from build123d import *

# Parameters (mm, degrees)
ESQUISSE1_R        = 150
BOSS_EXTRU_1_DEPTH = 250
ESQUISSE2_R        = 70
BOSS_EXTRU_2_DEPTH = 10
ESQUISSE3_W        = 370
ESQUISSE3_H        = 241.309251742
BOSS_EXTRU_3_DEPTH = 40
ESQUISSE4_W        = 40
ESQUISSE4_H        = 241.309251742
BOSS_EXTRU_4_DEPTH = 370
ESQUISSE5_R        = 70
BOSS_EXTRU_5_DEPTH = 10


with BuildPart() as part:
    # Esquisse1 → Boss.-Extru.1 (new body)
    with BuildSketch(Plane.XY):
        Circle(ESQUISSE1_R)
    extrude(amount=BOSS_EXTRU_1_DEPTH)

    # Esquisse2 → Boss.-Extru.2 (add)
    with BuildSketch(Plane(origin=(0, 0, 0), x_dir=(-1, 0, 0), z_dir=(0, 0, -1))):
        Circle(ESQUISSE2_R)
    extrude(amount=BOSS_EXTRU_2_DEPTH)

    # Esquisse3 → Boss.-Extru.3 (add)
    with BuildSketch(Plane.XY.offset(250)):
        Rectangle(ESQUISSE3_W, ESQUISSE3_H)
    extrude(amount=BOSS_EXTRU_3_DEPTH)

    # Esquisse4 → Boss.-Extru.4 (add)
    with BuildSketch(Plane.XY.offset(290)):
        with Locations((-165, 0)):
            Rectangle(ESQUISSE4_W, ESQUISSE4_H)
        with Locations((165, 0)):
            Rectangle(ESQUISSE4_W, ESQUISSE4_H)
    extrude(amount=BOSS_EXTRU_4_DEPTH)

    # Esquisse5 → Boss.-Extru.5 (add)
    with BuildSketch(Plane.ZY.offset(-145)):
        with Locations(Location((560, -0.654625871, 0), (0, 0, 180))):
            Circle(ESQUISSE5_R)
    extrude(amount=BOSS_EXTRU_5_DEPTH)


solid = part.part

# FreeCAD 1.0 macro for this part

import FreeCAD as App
import Part
import Sketcher
from FreeCAD import Vector

doc = App.newDocument("Part")
body = doc.addObject("PartDesign::Body", "Body")

# Sketch on XY plane
sketch1 = doc.addObject("Sketcher::SketchObject", "Sketch")
body.addObject(sketch1)
sketch1.AttachmentSupport = (doc.XY_Plane, [""])
sketch1.MapMode = "FlatFace"
sketch1.addGeometry(Part.Circle(Vector(0, 0, 0), Vector(0, 0, 1), 150), False)
sketch1.addConstraint([
    Sketcher.Constraint("Coincident", 0, 3, -1, 1),
    Sketcher.Constraint("Diameter", 0, 300.0),
])
pad1 = doc.addObject("PartDesign::Pad", "Pad")
body.addObject(pad1)
pad1.Profile = sketch1
pad1.Length = 250

# Sketch on XY plane
sketch2 = doc.addObject("Sketcher::SketchObject", "Sketch001")
body.addObject(sketch2)
sketch2.AttachmentSupport = (doc.XY_Plane, [""])
sketch2.MapMode = "FlatFace"
sketch2.addGeometry(Part.Circle(Vector(0, 0, 0), Vector(0, 0, 1), 70), False)
sketch2.addConstraint([
    Sketcher.Constraint("Coincident", 0, 3, -1, 1),
    Sketcher.Constraint("Diameter", 0, 140.0),
])
pad2 = doc.addObject("PartDesign::Pad", "Pad001")
body.addObject(pad2)
pad2.Profile = sketch2
pad2.Length = 10
pad2.Reversed = True

# Sketch on XY plane
sketch3 = doc.addObject("Sketcher::SketchObject", "Sketch002")
body.addObject(sketch3)
sketch3.AttachmentSupport = (doc.XY_Plane, [""])
sketch3.MapMode = "FlatFace"
sketch3.AttachmentOffset = App.Placement(Vector(0, 0, 250), App.Rotation())
sketch3.addGeometry([
    Part.LineSegment(Vector(-185, 121, 0), Vector(-185, -121, 0)),
    Part.LineSegment(Vector(-185, -121, 0), Vector(185, -121, 0)),
    Part.LineSegment(Vector(185, -121, 0), Vector(185, 121, 0)),
    Part.LineSegment(Vector(185, 121, 0), Vector(-185, 121, 0)),
], False)
sketch3.addConstraint([
    Sketcher.Constraint("Coincident", 0, 2, 1, 1),
    Sketcher.Constraint("Coincident", 1, 2, 2, 1),
    Sketcher.Constraint("Coincident", 2, 2, 3, 1),
    Sketcher.Constraint("Coincident", 3, 2, 0, 1),
    Sketcher.Constraint("Vertical", 0),
    Sketcher.Constraint("Horizontal", 1),
    Sketcher.Constraint("Vertical", 2),
    Sketcher.Constraint("Horizontal", 3),
    Sketcher.Constraint("Symmetric", 0, 2, 2, 2, -1, 1),
    Sketcher.Constraint("DistanceX", 1, 1, 1, 2, 370.0),
    Sketcher.Constraint("DistanceY", 0, 2, 0, 1, 241.309252),
])
pad3 = doc.addObject("PartDesign::Pad", "Pad002")
body.addObject(pad3)
pad3.Profile = sketch3
pad3.Length = 40

# Sketch on XY plane
sketch4 = doc.addObject("Sketcher::SketchObject", "Sketch003")
body.addObject(sketch4)
sketch4.AttachmentSupport = (doc.XY_Plane, [""])
sketch4.MapMode = "FlatFace"
sketch4.AttachmentOffset = App.Placement(Vector(0, 0, 290), App.Rotation())
sketch4.addGeometry([
    Part.LineSegment(Vector(-185, 121, 0), Vector(-185, -121, 0)),  # 0
    Part.LineSegment(Vector(-185, -121, 0), Vector(-145, -121, 0)),  # 1
    Part.LineSegment(Vector(-145, -121, 0), Vector(-145, 121, 0)),  # 2
    Part.LineSegment(Vector(-145, 121, 0), Vector(-185, 121, 0)),  # 3
    Part.LineSegment(Vector(145, 121, 0), Vector(145, -121, 0)),  # 4
    Part.LineSegment(Vector(145, -121, 0), Vector(185, -121, 0)),  # 5
    Part.LineSegment(Vector(185, -121, 0), Vector(185, 121, 0)),  # 6
    Part.LineSegment(Vector(185, 121, 0), Vector(145, 121, 0)),  # 7
], False)
sketch4.addConstraint([
    Sketcher.Constraint("Coincident", 0, 2, 1, 1),
    Sketcher.Constraint("Coincident", 1, 2, 2, 1),
    Sketcher.Constraint("Coincident", 2, 2, 3, 1),
    Sketcher.Constraint("Coincident", 3, 2, 0, 1),
    Sketcher.Constraint("Coincident", 4, 2, 5, 1),
    Sketcher.Constraint("Coincident", 5, 2, 6, 1),
    Sketcher.Constraint("Coincident", 6, 2, 7, 1),
    Sketcher.Constraint("Coincident", 7, 2, 4, 1),
    Sketcher.Constraint("Vertical", 0),
    Sketcher.Constraint("Horizontal", 1),
    Sketcher.Constraint("Vertical", 2),
    Sketcher.Constraint("Horizontal", 3),
    Sketcher.Constraint("Vertical", 4),
    Sketcher.Constraint("Horizontal", 5),
    Sketcher.Constraint("Vertical", 6),
    Sketcher.Constraint("Horizontal", 7),
    Sketcher.Constraint("Symmetric", 2, 2, 4, 2, -1, 1),
    Sketcher.Constraint("Symmetric", 0, 2, 6, 2, -1, 1),
    Sketcher.Constraint("Horizontal", 1, 2, 4, 2),
    Sketcher.Constraint("DistanceX", 1, 1, 1, 2, 40.0),
    Sketcher.Constraint("DistanceX", 0, 2, -1, 1, 185.0),
    Sketcher.Constraint("DistanceY", 0, 2, 0, 1, 241.309252),
])
pad4 = doc.addObject("PartDesign::Pad", "Pad003")
body.addObject(pad4)
pad4.Profile = sketch4
pad4.Length = 370

# Sketch on YZ plane
sketch5 = doc.addObject("Sketcher::SketchObject", "Sketch004")
body.addObject(sketch5)
sketch5.AttachmentSupport = (doc.YZ_Plane, [""])
sketch5.MapMode = "FlatFace"
sketch5.AttachmentOffset = App.Placement(Vector(0, 0, 145), App.Rotation())
sketch5.addGeometry(Part.Circle(Vector(-1, 560, 0), Vector(0, 0, 1), 70), False)
sketch5.addConstraint([
    Sketcher.Constraint("Diameter", 0, 140.0),
    Sketcher.Constraint("DistanceY", -1, 1, 0, 3, 560.0),
    Sketcher.Constraint("DistanceX", 0, 3, -1, 1, 0.654626),
])
pad5 = doc.addObject("PartDesign::Pad", "Pad004")
body.addObject(pad5)
pad5.Profile = sketch5
pad5.Length = 10
pad5.Reversed = True

doc.recompute()
